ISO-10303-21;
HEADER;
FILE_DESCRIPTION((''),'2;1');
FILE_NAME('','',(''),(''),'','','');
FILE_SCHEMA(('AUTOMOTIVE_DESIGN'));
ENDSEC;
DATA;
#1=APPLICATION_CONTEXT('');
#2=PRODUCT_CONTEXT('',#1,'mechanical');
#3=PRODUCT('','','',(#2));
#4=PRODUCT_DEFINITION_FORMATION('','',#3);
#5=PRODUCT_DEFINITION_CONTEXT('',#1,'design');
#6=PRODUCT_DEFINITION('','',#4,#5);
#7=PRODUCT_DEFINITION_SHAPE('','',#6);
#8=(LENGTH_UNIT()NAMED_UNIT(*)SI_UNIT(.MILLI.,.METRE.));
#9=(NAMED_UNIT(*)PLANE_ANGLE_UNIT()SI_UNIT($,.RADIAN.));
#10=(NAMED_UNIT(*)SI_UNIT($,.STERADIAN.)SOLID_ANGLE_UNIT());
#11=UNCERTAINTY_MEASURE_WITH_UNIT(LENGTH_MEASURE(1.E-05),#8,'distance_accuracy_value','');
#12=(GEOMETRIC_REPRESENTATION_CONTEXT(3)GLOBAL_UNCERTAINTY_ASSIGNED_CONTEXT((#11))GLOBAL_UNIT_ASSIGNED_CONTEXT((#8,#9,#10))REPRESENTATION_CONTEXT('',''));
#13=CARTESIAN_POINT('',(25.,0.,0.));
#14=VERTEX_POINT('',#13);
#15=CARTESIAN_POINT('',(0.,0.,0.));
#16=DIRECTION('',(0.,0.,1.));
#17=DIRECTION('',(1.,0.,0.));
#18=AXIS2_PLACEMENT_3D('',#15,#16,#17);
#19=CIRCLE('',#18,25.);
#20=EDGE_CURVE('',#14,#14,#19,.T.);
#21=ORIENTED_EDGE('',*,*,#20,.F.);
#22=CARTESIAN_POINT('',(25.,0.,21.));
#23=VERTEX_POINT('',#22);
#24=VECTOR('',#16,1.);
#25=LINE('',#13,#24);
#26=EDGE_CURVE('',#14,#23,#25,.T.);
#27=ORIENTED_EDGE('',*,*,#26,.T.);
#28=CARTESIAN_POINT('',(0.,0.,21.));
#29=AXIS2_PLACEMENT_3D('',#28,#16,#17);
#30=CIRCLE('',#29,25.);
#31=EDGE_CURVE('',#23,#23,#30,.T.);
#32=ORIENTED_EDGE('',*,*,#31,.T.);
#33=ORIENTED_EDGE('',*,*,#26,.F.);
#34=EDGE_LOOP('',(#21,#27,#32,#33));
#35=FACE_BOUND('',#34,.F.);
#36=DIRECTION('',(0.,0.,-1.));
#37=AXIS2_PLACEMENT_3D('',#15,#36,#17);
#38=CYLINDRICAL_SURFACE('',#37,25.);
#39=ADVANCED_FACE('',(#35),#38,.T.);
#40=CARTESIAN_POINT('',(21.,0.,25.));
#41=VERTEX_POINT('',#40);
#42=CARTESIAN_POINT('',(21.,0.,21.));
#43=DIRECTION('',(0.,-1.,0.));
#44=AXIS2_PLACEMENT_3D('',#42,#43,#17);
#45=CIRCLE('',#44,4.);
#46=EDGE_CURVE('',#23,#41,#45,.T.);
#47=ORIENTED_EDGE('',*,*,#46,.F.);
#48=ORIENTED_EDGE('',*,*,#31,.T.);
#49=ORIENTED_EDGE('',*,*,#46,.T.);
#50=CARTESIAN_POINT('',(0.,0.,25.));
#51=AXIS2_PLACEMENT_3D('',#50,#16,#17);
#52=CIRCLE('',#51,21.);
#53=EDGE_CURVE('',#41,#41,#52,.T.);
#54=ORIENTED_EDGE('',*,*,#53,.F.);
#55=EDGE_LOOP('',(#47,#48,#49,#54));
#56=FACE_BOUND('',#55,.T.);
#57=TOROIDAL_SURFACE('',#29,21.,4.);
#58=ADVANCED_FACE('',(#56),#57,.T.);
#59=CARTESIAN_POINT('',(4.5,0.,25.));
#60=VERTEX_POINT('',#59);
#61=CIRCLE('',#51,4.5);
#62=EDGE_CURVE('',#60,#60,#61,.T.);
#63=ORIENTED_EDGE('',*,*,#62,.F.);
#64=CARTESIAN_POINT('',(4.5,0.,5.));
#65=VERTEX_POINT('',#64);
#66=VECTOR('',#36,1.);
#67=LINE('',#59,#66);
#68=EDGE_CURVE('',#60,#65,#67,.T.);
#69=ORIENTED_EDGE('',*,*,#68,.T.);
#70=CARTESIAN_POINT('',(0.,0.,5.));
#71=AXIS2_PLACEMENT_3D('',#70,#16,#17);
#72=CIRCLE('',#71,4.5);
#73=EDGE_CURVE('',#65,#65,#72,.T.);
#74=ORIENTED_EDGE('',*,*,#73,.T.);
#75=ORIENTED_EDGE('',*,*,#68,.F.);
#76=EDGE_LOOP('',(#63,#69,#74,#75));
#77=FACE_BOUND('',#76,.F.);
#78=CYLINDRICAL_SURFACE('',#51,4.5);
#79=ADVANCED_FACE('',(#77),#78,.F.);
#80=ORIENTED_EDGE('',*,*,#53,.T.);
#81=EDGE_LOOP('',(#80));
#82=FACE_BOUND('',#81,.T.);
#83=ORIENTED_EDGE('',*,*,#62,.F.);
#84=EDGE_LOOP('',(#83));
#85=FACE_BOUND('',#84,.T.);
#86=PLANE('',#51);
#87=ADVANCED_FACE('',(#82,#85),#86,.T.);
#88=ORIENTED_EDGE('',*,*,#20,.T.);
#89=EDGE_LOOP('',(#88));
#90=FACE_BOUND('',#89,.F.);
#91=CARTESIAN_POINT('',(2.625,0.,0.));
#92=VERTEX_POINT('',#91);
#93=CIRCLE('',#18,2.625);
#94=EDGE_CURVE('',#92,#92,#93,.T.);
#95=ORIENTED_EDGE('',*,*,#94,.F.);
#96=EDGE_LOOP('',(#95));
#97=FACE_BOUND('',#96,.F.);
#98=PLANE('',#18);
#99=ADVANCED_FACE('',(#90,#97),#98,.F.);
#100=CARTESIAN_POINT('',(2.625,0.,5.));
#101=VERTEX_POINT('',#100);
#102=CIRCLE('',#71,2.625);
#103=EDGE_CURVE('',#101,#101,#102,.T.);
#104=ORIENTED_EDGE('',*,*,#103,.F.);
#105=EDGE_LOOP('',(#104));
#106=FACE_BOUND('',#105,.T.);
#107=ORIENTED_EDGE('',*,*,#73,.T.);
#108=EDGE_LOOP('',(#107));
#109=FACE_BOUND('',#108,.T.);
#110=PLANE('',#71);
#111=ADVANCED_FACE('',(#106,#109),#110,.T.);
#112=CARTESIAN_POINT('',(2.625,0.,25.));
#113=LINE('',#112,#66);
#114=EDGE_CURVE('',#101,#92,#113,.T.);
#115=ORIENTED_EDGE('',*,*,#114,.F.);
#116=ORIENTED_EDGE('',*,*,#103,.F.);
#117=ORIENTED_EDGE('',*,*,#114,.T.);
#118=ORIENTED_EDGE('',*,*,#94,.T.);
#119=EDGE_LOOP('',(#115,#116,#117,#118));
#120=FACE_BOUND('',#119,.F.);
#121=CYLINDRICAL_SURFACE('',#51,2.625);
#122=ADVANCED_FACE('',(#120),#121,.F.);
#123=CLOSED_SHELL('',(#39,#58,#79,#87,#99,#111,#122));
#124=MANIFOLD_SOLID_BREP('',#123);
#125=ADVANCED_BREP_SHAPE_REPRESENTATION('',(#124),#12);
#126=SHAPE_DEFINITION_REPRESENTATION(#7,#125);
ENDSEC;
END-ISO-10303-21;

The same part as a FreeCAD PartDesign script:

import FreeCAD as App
import Part
import Sketcher

V = App.Vector


def edges_at(feature, points):
    """Names of the edges that pass closest to the given points."""
    edges = feature.Shape.Edges
    near = lambda p: min(range(len(edges)), key=lambda i: edges[i].distToShape(Part.Vertex(*p))[0])
    return sorted({f"Edge{near(p) + 1}" for p in points})

doc = App.newDocument("Part")
body = doc.addObject("PartDesign::Body", "Body")

# Sketch on XY plane
sketch1 = body.newObject("Sketcher::SketchObject", "Sketch")
sketch1.AttachmentSupport = (doc.getObject("XY_Plane"), [""])
sketch1.MapMode = "FlatFace"
sketch1.addGeometry(Part.Circle(V(0, 0, 0), V(0, 0, 1), 25), False)
sketch1.addConstraint(Sketcher.Constraint("Coincident", 0, 3, -1, 1))
sketch1.addConstraint(Sketcher.Constraint("Diameter", 0, 50.0))
pad1 = body.newObject("PartDesign::Pad", "Pad")
pad1.Profile = sketch1
pad1.Length = 25

# Sketch on XY plane
sketch2 = body.newObject("Sketcher::SketchObject", "Sketch001")
sketch2.AttachmentSupport = (doc.getObject("XY_Plane"), [""])
sketch2.MapMode = "FlatFace"
sketch2.AttachmentOffset = App.Placement(V(0, 0, 25), App.Rotation())
sketch2.addGeometry(Part.Circle(V(0, 0, 0), V(0, 0, 1), 2.6), False)
sketch2.addConstraint(Sketcher.Constraint("Coincident", 0, 3, -1, 1))
sketch2.addConstraint(Sketcher.Constraint("Diameter", 0, 5.25))
pocket1 = body.newObject("PartDesign::Pocket", "Pocket")
pocket1.Profile = sketch2
pocket1.Length = 25

# Sketch on XY plane
sketch3 = body.newObject("Sketcher::SketchObject", "Sketch002")
sketch3.AttachmentSupport = (doc.getObject("XY_Plane"), [""])
sketch3.MapMode = "FlatFace"
sketch3.AttachmentOffset = App.Placement(V(0, 0, 25), App.Rotation())
sketch3.addGeometry(Part.Circle(V(0, 0, 0), V(0, 0, 1), 4.5), False)
sketch3.addConstraint(Sketcher.Constraint("Coincident", 0, 3, -1, 1))
sketch3.addConstraint(Sketcher.Constraint("Diameter", 0, 9.0))
pocket2 = body.newObject("PartDesign::Pocket", "Pocket001")
pocket2.Profile = sketch3
pocket2.Length = 20
doc.recompute()

fillet = body.newObject("PartDesign::Fillet", "Fillet")
fillet.Base = (pocket2, edges_at(pocket2, [(-25, 0, 25)]))
fillet.Radius = 4

doc.recompute()
